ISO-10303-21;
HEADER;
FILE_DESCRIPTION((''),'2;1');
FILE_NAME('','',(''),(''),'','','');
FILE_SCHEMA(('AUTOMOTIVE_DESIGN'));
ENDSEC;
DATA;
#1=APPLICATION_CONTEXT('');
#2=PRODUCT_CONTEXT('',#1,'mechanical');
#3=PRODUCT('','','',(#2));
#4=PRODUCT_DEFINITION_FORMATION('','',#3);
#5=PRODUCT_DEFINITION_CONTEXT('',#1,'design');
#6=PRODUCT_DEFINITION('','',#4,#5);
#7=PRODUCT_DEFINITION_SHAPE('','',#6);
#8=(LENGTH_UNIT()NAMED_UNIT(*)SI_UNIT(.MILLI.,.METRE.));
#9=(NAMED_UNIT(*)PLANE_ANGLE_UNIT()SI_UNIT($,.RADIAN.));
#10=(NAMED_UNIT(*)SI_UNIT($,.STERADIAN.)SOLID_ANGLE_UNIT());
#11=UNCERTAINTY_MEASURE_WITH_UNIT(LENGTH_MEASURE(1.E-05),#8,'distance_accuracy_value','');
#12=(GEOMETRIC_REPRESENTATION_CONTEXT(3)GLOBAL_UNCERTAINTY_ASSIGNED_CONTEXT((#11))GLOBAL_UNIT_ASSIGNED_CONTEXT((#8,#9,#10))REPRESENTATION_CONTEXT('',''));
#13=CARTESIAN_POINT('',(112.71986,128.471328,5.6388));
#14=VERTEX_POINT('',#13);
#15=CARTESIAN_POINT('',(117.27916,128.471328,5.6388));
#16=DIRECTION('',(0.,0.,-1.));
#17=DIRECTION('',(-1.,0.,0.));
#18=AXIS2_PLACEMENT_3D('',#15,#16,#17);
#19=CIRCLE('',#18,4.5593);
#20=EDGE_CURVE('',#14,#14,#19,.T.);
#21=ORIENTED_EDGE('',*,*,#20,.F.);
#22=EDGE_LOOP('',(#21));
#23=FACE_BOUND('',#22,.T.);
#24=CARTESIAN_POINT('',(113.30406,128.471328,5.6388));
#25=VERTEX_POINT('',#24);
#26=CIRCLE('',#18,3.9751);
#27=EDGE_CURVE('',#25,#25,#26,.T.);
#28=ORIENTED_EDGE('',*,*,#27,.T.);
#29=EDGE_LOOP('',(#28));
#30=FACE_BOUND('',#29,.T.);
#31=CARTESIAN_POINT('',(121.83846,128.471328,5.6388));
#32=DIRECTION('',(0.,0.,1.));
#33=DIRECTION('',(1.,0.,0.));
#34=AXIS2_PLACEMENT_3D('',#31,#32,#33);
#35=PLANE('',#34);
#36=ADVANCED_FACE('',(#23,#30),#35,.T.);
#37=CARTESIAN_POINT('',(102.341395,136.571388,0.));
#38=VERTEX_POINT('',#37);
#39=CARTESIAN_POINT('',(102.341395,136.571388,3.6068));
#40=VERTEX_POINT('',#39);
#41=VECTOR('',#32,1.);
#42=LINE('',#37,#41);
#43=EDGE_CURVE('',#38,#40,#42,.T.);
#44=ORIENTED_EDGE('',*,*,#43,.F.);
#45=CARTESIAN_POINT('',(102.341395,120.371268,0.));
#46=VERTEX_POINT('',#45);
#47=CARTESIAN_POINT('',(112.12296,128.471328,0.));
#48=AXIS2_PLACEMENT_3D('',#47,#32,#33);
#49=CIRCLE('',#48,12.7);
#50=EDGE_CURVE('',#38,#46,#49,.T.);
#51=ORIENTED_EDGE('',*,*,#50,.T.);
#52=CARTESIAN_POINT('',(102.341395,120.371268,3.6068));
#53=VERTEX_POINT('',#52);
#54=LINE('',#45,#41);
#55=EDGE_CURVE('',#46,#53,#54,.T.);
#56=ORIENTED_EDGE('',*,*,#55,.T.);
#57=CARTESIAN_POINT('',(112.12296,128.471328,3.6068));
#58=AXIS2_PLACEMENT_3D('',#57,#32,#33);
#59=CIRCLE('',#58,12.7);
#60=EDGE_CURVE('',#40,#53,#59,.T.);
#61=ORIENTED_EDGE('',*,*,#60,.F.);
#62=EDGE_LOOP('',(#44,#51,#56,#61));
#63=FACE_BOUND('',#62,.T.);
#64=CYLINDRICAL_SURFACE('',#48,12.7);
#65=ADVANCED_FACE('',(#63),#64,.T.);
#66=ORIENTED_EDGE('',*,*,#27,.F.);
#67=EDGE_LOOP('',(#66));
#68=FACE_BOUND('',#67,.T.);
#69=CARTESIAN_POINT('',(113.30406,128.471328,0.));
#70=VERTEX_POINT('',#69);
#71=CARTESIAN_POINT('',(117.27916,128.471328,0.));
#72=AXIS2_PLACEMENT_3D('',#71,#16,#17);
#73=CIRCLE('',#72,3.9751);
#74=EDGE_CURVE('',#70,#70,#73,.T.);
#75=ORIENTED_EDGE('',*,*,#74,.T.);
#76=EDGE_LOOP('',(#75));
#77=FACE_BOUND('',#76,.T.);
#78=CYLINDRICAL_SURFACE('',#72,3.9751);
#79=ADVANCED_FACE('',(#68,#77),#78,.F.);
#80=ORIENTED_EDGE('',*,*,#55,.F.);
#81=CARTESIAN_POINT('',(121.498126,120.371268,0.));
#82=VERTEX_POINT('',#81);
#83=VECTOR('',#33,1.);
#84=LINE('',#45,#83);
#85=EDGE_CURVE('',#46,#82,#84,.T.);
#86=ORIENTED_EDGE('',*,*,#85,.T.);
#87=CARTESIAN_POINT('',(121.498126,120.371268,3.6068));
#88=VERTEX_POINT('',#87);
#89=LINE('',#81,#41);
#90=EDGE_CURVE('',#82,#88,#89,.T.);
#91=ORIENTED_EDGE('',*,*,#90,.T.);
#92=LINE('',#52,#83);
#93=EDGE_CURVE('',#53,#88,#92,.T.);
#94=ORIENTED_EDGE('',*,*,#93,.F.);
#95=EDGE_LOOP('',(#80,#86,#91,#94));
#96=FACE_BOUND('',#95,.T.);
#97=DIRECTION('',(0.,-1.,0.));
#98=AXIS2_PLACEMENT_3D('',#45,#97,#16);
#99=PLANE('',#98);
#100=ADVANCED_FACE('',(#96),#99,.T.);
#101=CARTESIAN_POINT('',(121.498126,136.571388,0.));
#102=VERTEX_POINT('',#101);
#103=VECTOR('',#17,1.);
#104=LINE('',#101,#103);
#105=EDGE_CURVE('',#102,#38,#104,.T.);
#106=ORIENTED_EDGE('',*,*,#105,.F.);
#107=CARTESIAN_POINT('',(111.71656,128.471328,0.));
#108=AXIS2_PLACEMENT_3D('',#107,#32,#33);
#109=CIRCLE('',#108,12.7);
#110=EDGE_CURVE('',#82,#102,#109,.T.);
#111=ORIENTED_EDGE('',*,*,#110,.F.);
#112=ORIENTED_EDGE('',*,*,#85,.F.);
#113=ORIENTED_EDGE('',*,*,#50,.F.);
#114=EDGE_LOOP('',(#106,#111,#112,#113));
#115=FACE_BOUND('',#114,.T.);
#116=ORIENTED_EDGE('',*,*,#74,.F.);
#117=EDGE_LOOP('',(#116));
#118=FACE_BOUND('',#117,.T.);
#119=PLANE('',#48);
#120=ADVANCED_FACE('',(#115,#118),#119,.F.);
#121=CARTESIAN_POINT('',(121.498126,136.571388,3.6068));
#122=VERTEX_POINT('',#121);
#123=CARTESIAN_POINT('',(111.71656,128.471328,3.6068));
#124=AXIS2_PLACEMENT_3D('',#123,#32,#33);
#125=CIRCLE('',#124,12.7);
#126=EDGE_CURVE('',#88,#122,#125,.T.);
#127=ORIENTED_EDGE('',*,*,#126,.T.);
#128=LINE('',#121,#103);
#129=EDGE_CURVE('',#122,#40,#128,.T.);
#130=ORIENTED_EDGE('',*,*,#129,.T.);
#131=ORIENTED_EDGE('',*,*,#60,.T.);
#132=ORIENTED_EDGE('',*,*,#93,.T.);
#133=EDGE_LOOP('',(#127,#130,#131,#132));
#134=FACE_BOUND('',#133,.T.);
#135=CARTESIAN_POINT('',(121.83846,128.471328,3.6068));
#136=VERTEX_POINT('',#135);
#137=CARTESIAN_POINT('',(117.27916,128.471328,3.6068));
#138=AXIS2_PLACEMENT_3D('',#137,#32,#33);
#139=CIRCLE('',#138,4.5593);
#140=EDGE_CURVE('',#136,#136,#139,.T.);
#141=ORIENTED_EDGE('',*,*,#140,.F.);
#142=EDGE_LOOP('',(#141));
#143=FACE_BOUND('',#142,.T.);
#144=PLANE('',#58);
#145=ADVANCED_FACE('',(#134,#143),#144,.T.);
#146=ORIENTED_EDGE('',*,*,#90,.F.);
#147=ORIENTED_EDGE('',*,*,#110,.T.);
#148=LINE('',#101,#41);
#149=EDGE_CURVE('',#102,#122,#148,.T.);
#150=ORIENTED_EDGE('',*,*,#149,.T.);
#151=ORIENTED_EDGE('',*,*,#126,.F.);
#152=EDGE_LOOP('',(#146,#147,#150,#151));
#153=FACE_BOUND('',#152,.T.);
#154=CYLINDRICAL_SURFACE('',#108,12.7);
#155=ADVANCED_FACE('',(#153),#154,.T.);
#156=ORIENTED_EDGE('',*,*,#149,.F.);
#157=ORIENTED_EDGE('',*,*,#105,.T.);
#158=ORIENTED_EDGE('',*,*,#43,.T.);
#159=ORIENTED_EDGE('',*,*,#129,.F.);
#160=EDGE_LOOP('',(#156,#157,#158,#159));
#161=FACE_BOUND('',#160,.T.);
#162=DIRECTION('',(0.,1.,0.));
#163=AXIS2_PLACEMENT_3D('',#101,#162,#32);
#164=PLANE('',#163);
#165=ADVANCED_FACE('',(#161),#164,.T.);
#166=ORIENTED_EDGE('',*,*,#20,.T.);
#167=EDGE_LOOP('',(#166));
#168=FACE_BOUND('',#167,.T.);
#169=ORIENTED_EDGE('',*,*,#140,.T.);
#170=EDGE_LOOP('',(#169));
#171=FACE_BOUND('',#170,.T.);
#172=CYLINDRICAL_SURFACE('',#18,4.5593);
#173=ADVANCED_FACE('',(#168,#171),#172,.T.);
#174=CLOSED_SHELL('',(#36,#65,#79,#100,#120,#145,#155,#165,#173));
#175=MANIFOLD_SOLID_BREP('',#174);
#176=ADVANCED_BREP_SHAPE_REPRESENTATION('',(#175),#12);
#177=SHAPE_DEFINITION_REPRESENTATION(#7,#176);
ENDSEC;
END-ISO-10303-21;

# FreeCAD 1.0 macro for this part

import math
import FreeCAD as App
import Part
import Sketcher
Q = App.Units.Quantity

doc = App.newDocument("Part")
body = doc.addObject("PartDesign::Body", "Body")

# Sketch on XY plane
sketch1 = body.newObject("Sketcher::SketchObject", "Sketch")
sketch1.AttachmentSupport = (doc.getObject("XY_Plane"), [""])
sketch1.MapMode = "FlatFace"
sketch1.AttachmentOffset = App.Placement(App.Vector(0, 0, 0.142 * 25.4), App.Rotation())
sketch1.addGeometry([
    Part.LineSegment(App.Vector(102, 120, 0), App.Vector(121, 120, 0)),
    Part.ArcOfCircle(Part.Circle(App.Vector(112, 128, 0), App.Vector(0, 0, 1), 13), math.radians(-40), math.radians(40)),
    Part.LineSegment(App.Vector(121, 137, 0), App.Vector(102, 137, 0)),
    Part.ArcOfCircle(Part.Circle(App.Vector(112, 128, 0), App.Vector(0, 0, 1), 13), math.radians(140), math.radians(220)),
], False)
sketch1.addConstraint([
    Sketcher.Constraint("Coincident", 0, 2, 1, 1),
    Sketcher.Constraint("Coincident", 1, 2, 2, 1),
    Sketcher.Constraint("Coincident", 2, 2, 3, 1),
    Sketcher.Constraint("Coincident", 3, 2, 0, 1),
    Sketcher.Constraint("Horizontal", 0),
    Sketcher.Constraint("Horizontal", 2),
    Sketcher.Constraint("Equal", 1, 3),
    Sketcher.Constraint("Horizontal", 1, 3, 3, 3),
    Sketcher.Constraint("Vertical", 0, 2, 1, 2),
    Sketcher.Constraint("Radius", 1, Q("0.5 in")),
    Sketcher.Constraint("DistanceX", 1, 3, 3, 3, Q("0.016 in")),
    Sketcher.Constraint("DistanceY", 0, 2, 3, 3, Q("0.3189 in")),
    Sketcher.Constraint("DistanceX", -1, 1, 1, 3, Q("111.71656 mm")),
    Sketcher.Constraint("DistanceY", -1, 1, 1, 3, Q("128.471328 mm")),
])
pad1 = body.newObject("PartDesign::Pad", "Pad")
pad1.Profile = sketch1
pad1.Length = Q("0.142 in")
pad1.Reversed = True

# Sketch on XZ plane
sketch2 = body.newObject("Sketcher::SketchObject", "Sketch001")
sketch2.AttachmentSupport = (doc.getObject("XZ_Plane"), [""])
sketch2.MapMode = "FlatFace"
sketch2.AttachmentOffset = App.Placement(App.Vector(0, 0, -128.471328), App.Rotation())
sketch2.addGeometry([
    Part.LineSegment(App.Vector(117.3, 5.6, 0), App.Vector(117.3, 3.6, 0)),
    Part.LineSegment(App.Vector(117.3, 3.6, 0), App.Vector(121.8, 3.6, 0)),
    Part.LineSegment(App.Vector(121.8, 3.6, 0), App.Vector(121.8, 5.6, 0)),
    Part.LineSegment(App.Vector(121.8, 5.6, 0), App.Vector(117.3, 5.6, 0)),
], False)
sketch2.addGeometry(Part.LineSegment(App.Vector(117.3, 5.6, 0), App.Vector(117.3, 3.6, 0)), True)  # axis
sketch2.addConstraint([
    Sketcher.Constraint("Coincident", 0, 2, 1, 1),
    Sketcher.Constraint("Coincident", 1, 2, 2, 1),
    Sketcher.Constraint("Coincident", 2, 2, 3, 1),
    Sketcher.Constraint("Coincident", 3, 2, 0, 1),
    Sketcher.Constraint("Vertical", 0),
    Sketcher.Constraint("Horizontal", 1),
    Sketcher.Constraint("Vertical", 2),
    Sketcher.Constraint("Horizontal", 3),
    Sketcher.Constraint("Vertical", 4),
    Sketcher.Constraint("Coincident", 4, 1, 3, 2),
    Sketcher.Constraint("Horizontal", 1, 2, 4, 2),
    Sketcher.Constraint("DistanceY", 0, 2, 0, 1, Q("0.08 in")),
    Sketcher.Constraint("DistanceX", 1, 1, 1, 2, Q("0.1795 in")),
    Sketcher.Constraint("DistanceY", -1, 1, 0, 2, Q("0.142 in")),
    Sketcher.Constraint("DistanceX", -1, 1, 0, 2, Q("117.27916 mm")),
])
revolution = body.newObject("PartDesign::Revolution", "Revolution")
revolution.Profile = sketch2
revolution.ReferenceAxis = (sketch2, ["Axis0"])
revolution.Angle = 360

# Sketch on XY plane
sketch3 = body.newObject("Sketcher::SketchObject", "Sketch002")
sketch3.AttachmentSupport = (doc.getObject("XY_Plane"), [""])
sketch3.MapMode = "FlatFace"
sketch3.addGeometry(Part.Circle(App.Vector(117.3, 128.5, 0), App.Vector(0, 0, 1), 4), False)
sketch3.addConstraint([
    Sketcher.Constraint("Diameter", 0, Q("0.313 in")),
    Sketcher.Constraint("DistanceX", -1, 1, 0, 3, Q("117.27916 mm")),
    Sketcher.Constraint("DistanceY", -1, 1, 0, 3, Q("128.471328 mm")),
])
doc.recompute()
hole = body.newObject("PartDesign::Hole", "Hole")
hole.Profile = sketch3
hole.ThreadType = "None"
hole.Diameter = Q("0.313 in")
hole.DepthType = "ThroughAll"
hole.Reversed = True

doc.recompute()
